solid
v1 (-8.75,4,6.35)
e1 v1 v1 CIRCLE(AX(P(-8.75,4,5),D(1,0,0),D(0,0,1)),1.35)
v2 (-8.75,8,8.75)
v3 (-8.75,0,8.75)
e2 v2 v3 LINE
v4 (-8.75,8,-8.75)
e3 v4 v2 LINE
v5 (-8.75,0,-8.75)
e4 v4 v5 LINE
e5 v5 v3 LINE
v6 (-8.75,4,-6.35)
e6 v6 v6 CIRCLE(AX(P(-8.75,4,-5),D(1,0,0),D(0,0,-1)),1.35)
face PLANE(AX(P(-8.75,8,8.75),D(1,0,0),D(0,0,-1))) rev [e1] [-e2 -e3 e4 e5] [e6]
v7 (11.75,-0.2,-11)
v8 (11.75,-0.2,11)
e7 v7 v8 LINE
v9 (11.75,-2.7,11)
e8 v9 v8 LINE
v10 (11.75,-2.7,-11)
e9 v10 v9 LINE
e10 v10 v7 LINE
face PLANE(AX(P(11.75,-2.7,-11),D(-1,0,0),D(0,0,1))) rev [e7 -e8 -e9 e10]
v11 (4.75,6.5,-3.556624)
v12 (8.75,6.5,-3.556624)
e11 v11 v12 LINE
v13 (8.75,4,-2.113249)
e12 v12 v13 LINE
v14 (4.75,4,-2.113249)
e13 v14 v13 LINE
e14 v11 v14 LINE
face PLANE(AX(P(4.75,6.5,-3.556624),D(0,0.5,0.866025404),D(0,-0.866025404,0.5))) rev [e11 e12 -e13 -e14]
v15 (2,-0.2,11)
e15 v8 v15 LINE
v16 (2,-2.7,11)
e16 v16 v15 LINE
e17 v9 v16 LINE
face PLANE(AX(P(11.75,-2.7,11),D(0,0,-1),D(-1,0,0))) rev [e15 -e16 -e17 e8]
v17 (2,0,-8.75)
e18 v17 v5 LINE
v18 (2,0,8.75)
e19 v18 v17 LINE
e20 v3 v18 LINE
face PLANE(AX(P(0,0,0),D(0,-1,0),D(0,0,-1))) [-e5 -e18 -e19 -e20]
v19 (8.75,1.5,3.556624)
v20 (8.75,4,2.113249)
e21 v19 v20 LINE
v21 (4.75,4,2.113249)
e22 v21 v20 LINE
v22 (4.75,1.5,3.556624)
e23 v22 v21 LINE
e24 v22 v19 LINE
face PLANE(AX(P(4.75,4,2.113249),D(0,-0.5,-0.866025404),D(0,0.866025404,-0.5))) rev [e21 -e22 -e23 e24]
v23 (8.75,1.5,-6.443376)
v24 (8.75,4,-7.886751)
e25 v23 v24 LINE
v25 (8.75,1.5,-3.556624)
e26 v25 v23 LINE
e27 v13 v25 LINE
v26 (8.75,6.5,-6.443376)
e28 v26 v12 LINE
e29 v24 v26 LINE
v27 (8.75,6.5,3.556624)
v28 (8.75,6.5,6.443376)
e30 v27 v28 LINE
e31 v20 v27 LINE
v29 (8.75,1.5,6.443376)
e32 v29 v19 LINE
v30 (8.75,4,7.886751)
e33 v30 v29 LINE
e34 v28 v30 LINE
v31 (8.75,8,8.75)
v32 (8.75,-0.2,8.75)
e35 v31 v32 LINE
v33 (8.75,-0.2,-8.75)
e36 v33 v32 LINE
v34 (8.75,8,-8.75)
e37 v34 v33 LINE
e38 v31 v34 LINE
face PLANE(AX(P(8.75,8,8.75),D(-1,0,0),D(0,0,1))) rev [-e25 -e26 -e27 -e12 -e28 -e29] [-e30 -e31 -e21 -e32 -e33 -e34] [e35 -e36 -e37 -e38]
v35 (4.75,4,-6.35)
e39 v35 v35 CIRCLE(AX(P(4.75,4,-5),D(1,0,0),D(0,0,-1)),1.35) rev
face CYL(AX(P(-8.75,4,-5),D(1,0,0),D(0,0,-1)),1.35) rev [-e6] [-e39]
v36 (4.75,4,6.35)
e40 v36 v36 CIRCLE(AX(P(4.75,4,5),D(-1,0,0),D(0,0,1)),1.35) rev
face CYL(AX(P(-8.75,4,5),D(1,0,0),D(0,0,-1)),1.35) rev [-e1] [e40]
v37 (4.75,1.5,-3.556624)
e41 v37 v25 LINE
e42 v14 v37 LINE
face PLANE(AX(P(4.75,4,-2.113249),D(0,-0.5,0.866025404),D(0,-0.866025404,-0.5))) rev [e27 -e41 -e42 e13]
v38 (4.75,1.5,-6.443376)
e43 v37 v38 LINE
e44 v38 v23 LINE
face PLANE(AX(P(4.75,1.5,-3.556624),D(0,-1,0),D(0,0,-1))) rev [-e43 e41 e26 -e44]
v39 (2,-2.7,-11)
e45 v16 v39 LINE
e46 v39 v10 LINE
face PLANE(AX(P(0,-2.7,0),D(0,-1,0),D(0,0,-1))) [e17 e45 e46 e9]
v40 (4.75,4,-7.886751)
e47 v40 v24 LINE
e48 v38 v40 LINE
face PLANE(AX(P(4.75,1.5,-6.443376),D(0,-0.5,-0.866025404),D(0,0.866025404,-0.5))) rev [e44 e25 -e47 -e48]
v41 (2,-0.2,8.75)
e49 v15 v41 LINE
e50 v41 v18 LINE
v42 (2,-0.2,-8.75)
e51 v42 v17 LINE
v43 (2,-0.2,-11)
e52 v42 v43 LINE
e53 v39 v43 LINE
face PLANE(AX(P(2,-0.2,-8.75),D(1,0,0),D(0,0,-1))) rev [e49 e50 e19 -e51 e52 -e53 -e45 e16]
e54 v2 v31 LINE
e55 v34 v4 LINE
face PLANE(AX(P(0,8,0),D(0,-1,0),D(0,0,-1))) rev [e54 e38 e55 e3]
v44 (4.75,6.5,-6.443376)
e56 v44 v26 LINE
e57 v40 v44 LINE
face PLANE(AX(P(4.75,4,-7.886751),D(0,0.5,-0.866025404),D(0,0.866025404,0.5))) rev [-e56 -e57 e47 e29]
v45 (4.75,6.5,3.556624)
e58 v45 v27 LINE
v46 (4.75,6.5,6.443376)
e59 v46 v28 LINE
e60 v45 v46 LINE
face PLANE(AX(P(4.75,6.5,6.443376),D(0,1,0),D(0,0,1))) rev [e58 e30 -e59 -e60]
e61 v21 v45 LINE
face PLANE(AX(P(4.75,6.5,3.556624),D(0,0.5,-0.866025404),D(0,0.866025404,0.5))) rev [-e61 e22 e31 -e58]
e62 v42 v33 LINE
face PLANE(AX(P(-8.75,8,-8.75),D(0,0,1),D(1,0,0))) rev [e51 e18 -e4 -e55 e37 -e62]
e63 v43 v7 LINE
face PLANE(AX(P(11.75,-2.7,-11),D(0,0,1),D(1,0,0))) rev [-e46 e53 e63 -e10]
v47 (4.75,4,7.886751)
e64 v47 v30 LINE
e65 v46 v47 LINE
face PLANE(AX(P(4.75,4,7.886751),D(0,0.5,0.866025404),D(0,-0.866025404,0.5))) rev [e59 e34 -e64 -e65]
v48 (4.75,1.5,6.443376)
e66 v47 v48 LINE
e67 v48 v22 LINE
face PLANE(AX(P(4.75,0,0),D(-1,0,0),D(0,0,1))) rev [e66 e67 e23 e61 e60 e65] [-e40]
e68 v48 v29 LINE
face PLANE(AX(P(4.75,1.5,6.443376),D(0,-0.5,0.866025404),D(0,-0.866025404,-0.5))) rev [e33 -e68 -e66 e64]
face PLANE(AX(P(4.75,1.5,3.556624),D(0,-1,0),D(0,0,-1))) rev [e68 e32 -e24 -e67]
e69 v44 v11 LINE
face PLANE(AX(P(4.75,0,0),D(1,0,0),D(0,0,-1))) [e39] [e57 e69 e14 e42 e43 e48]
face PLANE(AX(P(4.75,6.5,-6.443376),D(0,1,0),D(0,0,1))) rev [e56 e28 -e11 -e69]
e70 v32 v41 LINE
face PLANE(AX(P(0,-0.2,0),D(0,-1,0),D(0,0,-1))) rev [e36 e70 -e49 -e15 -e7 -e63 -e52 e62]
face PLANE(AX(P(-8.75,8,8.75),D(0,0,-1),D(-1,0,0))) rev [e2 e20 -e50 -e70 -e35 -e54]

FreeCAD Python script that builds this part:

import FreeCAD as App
import Part
import Sketcher
from FreeCAD import Vector
Q = App.Units.Quantity


def add_polygon(sketch, points):
    """Adds a closed chain of lines whose ends are joined by coincident constraints."""
    first, n = sketch.GeometryCount, len(points)
    for a, b in zip(points, points[1:] + points[:1]):
        sketch.addGeometry(Part.LineSegment(App.Vector(*a, 0), App.Vector(*b, 0)), False)
    for i in range(n):
        sketch.addConstraint(Sketcher.Constraint("Coincident", first + i, 2, first + (i + 1) % n, 1))

doc = App.newDocument("Part")
body = doc.addObject("PartDesign::Body", "Body")

# Sketch on XZ plane
sketch1 = body.newObject("Sketcher::SketchObject", "Sketch")
sketch1.AttachmentSupport = (doc.getObject("XZ_Plane"), [""])
sketch1.MapMode = "FlatFace"
add_polygon(sketch1, [(-9, -9), (-9, 9), (9, 9), (9, -9)])  # lines 0-3
sketch1.addConstraint([
    Sketcher.Constraint("Vertical", 0),
    Sketcher.Constraint("Horizontal", 1),
    Sketcher.Constraint("Vertical", 2),
    Sketcher.Constraint("Horizontal", 3),
    Sketcher.Constraint("Symmetric", 0, 2, 2, 2, -1, 1),
    Sketcher.Constraint("Equal", 3, 0),
    Sketcher.Constraint("DistanceX", 1, 1, 1, 2, 17.5),
])
pad1 = body.newObject("PartDesign::Pad", "Pad")
pad1.Profile = sketch1
pad1.Length = 8
pad1.Reversed = True

# Sketch on YZ plane
sketch2 = body.newObject("Sketcher::SketchObject", "Sketch001")
sketch2.AttachmentSupport = (doc.getObject("YZ_Plane"), [""])
sketch2.MapMode = "FlatFace"
sketch2.AttachmentOffset = App.Placement(Vector(0, 0, 8.75), App.Rotation())
sketch2.addGeometry([
    Part.Circle(Vector(4, -5, 0), Vector(0, 0, 1), 1.4),
    Part.Circle(Vector(4, 5, 0), Vector(0, 0, 1), 1.4),
], False)
sketch2.addConstraint([
    Sketcher.Constraint("Equal", 0, 1),
    Sketcher.Constraint("Symmetric", 0, 3, 1, 3, -1),
    Sketcher.Constraint("Diameter", 0, 2.7),
    Sketcher.Constraint("DistanceX", -1, 1, 0, 3, 4.0),
    Sketcher.Constraint("DistanceY", 0, 3, -1, 1, 5.0),
])
pocket1 = body.newObject("PartDesign::Pocket", "Pocket")
pocket1.Profile = sketch2
pocket1.Type = "ThroughAll"

# Sketch on YZ plane
sketch3 = body.newObject("Sketcher::SketchObject", "Sketch002")
sketch3.AttachmentSupport = (doc.getObject("YZ_Plane"), [""])
sketch3.MapMode = "FlatFace"
sketch3.AttachmentOffset = App.Placement(Vector(0, 0, 8.75), App.Rotation())
add_polygon(sketch3, [(4, -7.9), (6.5, -6.4), (6.5, -3.6), (4, -2.1), (1.5, -3.6), (1.5, -6.4)])  # lines 0-5
add_polygon(sketch3, [(4, 7.9), (1.5, 6.4), (1.5, 3.6), (4, 2.1), (6.5, 3.6), (6.5, 6.4)])  # lines 6-11
sketch3.addConstraint([
    Sketcher.Constraint("Vertical", 1),
    Sketcher.Constraint("Vertical", 4),
    Sketcher.Constraint("Vertical", 7),
    Sketcher.Constraint("Vertical", 10),
    Sketcher.Constraint("Symmetric", 4, 2, 6, 2, -1),
    Sketcher.Constraint("Symmetric", 2, 2, 8, 2, -1),
    Sketcher.Constraint("Symmetric", 1, 2, 9, 2, -1),
    Sketcher.Constraint("Symmetric", 5, 2, 11, 2, -1),
    Sketcher.Constraint("Parallel", 0, 3),
    Sketcher.Constraint("Parallel", 2, 5),
    Sketcher.Constraint("Parallel", 3, 6),
    Sketcher.Constraint("Parallel", 5, 8),
    Sketcher.Constraint("Parallel", 8, 11),
    Sketcher.Constraint("Horizontal", 1, 2, 3, 2),
    Sketcher.Constraint("Horizontal", 0, 2, 4, 2),
    Sketcher.Constraint("Angle", 0, Q("30 deg")),
    Sketcher.Constraint("DistanceX", -1, 1, 2, 2, 4.0),
    Sketcher.Constraint("DistanceX", 3, 2, 1, 2, 5.0),
    Sketcher.Constraint("DistanceY", 3, 2, 6, 2, 10.0),
    Sketcher.Constraint("DistanceY", 1, 1, 1, 2, 2.886751),
])
pocket2 = body.newObject("PartDesign::Pocket", "Pocket001")
pocket2.Profile = sketch3
pocket2.Length = 4

# Sketch on XZ plane
sketch4 = body.newObject("Sketcher::SketchObject", "Sketch003")
sketch4.AttachmentSupport = (doc.getObject("XZ_Plane"), [""])
sketch4.MapMode = "FlatFace"
add_polygon(sketch4, [(2, 9), (2, -9), (9, -9), (9, 9)])  # lines 0-3
sketch4.addConstraint([
    Sketcher.Constraint("Vertical", 0),
    Sketcher.Constraint("Horizontal", 1),
    Sketcher.Constraint("Vertical", 2),
    Sketcher.Constraint("Horizontal", 3),
    Sketcher.Constraint("DistanceY", 0, 2, 0, 1, 17.5),
    Sketcher.Constraint("DistanceX", -1, 1, 0, 2, 2.0),
    Sketcher.Constraint("DistanceX", 1, 1, 1, 2, 6.75),
    Sketcher.Constraint("DistanceY", 0, 2, -1, 1, 8.75),
])
pad2 = body.newObject("PartDesign::Pad", "Pad001")
pad2.Profile = sketch4
pad2.Length = 0.2

# Sketch on XZ plane
sketch5 = body.newObject("Sketcher::SketchObject", "Sketch004")
sketch5.AttachmentSupport = (doc.getObject("XZ_Plane"), [""])
sketch5.MapMode = "FlatFace"
sketch5.AttachmentOffset = App.Placement(Vector(0, 0, 0.2), App.Rotation())
add_polygon(sketch5, [(2, 11), (2, -11), (12, -11), (12, 11)])  # lines 0-3
sketch5.addConstraint([
    Sketcher.Constraint("Vertical", 0),
    Sketcher.Constraint("Horizontal", 1),
    Sketcher.Constraint("Vertical", 2),
    Sketcher.Constraint("Horizontal", 3),
    Sketcher.Constraint("DistanceY", 0, 2, 0, 1, 22.0),
    Sketcher.Constraint("DistanceX", -1, 1, 0, 2, 2.0),
    Sketcher.Constraint("DistanceY", 0, 2, -1, 1, 11.0),
    Sketcher.Constraint("DistanceX", 1, 1, 1, 2, 9.75),
])
pad3 = body.newObject("PartDesign::Pad", "Pad002")
pad3.Profile = sketch5
pad3.Length = 2.5

doc.recompute()
